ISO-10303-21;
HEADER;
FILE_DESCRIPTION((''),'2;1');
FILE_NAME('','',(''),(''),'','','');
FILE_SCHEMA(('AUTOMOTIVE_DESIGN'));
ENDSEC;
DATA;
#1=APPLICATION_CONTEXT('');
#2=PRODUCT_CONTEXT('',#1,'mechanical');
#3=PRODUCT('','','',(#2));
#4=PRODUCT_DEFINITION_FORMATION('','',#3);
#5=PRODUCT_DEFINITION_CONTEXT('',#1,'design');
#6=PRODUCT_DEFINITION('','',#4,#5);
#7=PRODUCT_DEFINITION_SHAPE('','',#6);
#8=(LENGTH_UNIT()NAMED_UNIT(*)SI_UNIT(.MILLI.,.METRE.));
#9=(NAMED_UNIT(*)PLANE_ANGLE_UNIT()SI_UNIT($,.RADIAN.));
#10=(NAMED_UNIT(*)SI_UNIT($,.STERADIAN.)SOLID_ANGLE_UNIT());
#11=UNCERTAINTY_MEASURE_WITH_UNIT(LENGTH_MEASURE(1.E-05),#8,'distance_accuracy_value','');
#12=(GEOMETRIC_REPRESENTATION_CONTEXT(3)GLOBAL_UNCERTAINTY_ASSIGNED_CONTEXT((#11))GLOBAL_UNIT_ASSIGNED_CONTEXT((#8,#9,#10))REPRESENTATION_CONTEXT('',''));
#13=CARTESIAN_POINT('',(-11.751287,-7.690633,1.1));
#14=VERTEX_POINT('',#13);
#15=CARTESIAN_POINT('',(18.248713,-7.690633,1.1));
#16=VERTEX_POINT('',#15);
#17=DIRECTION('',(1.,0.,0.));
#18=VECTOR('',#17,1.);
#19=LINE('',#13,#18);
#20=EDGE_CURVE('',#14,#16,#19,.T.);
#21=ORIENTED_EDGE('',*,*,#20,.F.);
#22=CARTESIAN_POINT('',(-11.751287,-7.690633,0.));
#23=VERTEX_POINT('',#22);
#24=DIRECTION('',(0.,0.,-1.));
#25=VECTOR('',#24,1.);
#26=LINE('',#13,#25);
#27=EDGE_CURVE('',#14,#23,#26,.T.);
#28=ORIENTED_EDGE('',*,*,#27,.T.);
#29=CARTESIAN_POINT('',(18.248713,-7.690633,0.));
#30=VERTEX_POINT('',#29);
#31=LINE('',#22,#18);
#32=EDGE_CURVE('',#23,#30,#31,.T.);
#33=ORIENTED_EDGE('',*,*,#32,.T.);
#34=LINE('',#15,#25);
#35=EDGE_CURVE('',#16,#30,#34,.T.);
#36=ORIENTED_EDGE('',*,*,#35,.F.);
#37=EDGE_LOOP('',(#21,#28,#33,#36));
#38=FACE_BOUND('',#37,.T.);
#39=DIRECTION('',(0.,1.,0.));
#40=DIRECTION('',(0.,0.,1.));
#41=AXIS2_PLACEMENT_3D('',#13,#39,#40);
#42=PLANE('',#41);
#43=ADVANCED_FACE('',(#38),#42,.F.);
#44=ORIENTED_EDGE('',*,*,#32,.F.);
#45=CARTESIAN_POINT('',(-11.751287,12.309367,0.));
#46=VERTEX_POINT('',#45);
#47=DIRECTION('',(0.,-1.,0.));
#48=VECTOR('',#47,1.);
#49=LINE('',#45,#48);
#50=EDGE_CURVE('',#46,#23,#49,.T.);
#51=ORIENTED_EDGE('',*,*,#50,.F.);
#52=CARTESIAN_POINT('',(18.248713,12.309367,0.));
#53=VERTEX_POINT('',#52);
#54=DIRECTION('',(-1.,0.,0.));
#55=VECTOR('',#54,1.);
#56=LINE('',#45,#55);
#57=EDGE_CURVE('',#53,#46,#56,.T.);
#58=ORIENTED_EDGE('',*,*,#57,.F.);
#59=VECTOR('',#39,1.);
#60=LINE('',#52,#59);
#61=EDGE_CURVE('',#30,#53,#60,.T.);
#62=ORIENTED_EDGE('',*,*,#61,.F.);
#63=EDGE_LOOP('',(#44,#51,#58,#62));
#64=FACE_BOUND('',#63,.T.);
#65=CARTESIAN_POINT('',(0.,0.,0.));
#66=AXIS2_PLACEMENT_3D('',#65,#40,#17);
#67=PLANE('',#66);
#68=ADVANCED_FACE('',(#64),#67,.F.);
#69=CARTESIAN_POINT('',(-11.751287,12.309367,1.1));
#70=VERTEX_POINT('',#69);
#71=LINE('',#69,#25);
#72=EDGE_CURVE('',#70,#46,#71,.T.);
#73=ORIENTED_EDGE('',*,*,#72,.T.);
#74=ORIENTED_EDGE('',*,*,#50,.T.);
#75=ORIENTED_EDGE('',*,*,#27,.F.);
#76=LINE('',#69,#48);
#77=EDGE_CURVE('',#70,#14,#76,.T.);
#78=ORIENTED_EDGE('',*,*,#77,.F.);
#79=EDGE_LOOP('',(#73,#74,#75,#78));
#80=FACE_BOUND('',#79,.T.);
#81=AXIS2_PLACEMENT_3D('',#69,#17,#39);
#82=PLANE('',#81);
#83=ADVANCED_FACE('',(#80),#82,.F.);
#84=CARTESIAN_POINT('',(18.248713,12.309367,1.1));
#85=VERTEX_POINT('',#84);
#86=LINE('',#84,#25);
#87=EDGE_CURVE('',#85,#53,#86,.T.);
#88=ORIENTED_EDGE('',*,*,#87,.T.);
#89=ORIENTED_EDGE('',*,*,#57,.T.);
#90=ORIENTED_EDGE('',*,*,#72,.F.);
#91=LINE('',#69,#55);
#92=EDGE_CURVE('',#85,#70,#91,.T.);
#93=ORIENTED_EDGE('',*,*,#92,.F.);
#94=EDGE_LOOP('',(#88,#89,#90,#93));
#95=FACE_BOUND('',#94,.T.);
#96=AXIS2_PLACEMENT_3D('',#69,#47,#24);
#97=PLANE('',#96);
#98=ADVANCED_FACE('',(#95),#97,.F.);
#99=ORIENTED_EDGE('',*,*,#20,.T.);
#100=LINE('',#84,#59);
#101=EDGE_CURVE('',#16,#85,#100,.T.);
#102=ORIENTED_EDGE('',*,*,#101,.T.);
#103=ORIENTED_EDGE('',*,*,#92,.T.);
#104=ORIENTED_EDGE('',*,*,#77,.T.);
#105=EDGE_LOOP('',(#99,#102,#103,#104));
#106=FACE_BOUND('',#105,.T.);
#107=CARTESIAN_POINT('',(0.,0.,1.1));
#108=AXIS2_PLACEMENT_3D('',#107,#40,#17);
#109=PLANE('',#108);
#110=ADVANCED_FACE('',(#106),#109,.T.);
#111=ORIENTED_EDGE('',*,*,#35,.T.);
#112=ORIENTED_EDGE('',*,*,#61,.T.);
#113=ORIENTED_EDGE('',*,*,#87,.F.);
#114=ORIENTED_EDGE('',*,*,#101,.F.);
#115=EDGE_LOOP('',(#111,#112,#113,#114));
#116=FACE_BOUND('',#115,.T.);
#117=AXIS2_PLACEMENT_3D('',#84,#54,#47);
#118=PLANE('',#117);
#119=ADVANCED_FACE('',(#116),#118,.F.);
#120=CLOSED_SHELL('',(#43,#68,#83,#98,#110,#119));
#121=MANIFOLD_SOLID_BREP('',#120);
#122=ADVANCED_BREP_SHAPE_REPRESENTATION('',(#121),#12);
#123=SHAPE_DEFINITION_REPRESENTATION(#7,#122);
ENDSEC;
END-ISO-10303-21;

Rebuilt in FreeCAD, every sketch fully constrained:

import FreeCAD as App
import Part
import Sketcher
from FreeCAD import Vector
Q = App.Units.Quantity


def add_polygon(sketch, points):
    """Adds a closed chain of lines whose ends are joined by coincident constraints."""
    first, n = sketch.GeometryCount, len(points)
    for a, b in zip(points, points[1:] + points[:1]):
        sketch.addGeometry(Part.LineSegment(App.Vector(*a, 0), App.Vector(*b, 0)), False)
    for i in range(n):
        sketch.addConstraint(Sketcher.Constraint("Coincident", first + i, 2, first + (i + 1) % n, 1))

doc = App.newDocument("Part")
params = doc.addObject("Spreadsheet::Sheet", "Params")
for row, (alias, value) in enumerate([
    ("sketch1_width", "30 mm"),
    ("sketch1_height", "20 mm"),
    ("pad1_length", "1.1 mm"),
], start=1):
    params.set(f"A{row}", alias)
    params.set(f"B{row}", "=" + value)
    params.setAlias(f"B{row}", alias)

body = doc.addObject("PartDesign::Body", "Body")

# Sketch on XY plane
sketch1 = body.newObject("Sketcher::SketchObject", "Sketch")
sketch1.AttachmentSupport = (doc.getObject("XY_Plane"), [""])
sketch1.MapMode = "FlatFace"
add_polygon(sketch1, [(-12, 12), (-12, -8), (18, -8), (18, 12)])  # lines 0-3
sketch1.addConstraint([
    Sketcher.Constraint("Vertical", 0),
    Sketcher.Constraint("Horizontal", 1),
    Sketcher.Constraint("Vertical", 2),
    Sketcher.Constraint("Horizontal", 3),
    Sketcher.Constraint("DistanceX", 1, 1, 1, 2, Q("30 mm")),
    Sketcher.Constraint("DistanceY", 0, 2, 0, 1, Q("20 mm")),
    Sketcher.Constraint("DistanceX", 0, 2, -1, 1, Q("11.751287 mm")),
    Sketcher.Constraint("DistanceY", 0, 2, -1, 1, Q("7.690633 mm")),
])
sketch1.setExpression("Constraints[8]", "Params.sketch1_width")
sketch1.setExpression("Constraints[9]", "Params.sketch1_height")
pad1 = body.newObject("PartDesign::Pad", "Pad")
pad1.Profile = sketch1
pad1.setExpression("Length", "Params.pad1_length")

doc.recompute()
